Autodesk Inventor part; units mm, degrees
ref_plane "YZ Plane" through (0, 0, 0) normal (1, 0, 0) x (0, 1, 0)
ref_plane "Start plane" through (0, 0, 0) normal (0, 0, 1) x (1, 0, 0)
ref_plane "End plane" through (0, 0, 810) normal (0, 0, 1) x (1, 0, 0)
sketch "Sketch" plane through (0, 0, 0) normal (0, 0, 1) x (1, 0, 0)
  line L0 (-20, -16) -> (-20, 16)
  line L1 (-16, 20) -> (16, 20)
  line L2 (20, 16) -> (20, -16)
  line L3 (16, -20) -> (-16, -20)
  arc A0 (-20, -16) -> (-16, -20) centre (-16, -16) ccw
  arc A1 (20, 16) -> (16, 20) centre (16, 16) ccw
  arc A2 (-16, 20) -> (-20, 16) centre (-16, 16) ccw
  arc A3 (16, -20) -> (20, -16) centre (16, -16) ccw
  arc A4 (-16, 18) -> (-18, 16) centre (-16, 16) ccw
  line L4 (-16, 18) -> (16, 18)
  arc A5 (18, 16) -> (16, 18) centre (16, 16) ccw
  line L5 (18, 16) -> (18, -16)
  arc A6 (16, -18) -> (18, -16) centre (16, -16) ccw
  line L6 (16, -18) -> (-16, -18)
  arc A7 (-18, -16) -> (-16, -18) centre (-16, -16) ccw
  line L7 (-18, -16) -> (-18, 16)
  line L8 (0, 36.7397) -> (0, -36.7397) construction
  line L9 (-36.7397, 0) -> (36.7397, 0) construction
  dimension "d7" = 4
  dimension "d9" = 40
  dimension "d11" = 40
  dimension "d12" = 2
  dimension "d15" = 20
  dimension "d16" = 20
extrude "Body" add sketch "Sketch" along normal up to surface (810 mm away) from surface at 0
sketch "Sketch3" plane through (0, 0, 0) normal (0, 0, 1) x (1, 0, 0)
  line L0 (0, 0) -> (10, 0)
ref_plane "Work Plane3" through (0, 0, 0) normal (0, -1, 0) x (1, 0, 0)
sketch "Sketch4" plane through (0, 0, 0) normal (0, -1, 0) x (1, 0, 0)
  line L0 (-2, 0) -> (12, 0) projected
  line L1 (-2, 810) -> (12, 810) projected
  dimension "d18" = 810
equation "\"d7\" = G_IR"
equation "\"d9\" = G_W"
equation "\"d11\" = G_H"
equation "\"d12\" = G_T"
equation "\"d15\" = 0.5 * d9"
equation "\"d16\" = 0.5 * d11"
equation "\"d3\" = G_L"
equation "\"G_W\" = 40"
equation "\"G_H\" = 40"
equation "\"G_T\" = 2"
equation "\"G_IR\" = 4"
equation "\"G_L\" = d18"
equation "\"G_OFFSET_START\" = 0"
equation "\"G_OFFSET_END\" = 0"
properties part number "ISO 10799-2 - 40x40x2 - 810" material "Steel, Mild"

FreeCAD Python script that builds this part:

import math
import FreeCAD as App
import Part
import Sketcher
from FreeCAD import Vector
Q = App.Units.Quantity

doc = App.newDocument("Part")
body = doc.addObject("PartDesign::Body", "Body")

sketch1 = body.newObject("Sketcher::SketchObject", "Sketch")
sketch1.AttachmentSupport = (doc.getObject("XY_Plane"), [""])
sketch1.MapMode = "FlatFace"
sketch1.addGeometry(Part.LineSegment(Vector(-20, 16, 0), Vector(-20, -16, 0)), False)
sketch1.addGeometry(Part.ArcOfCircle(Part.Circle(Vector(-16, -16, 0), Vector(0, 0, 1), 4), math.radians(180), math.radians(270)), False)
sketch1.addGeometry(Part.LineSegment(Vector(-16, -20, 0), Vector(16, -20, 0)), False)
sketch1.addGeometry(Part.ArcOfCircle(Part.Circle(Vector(16, -16, 0), Vector(0, 0, 1), 4), math.radians(-90), math.radians(0)), False)
sketch1.addGeometry(Part.LineSegment(Vector(20, -16, 0), Vector(20, 16, 0)), False)
sketch1.addGeometry(Part.ArcOfCircle(Part.Circle(Vector(16, 16, 0), Vector(0, 0, 1), 4), math.radians(0), math.radians(90)), False)
sketch1.addGeometry(Part.LineSegment(Vector(16, 20, 0), Vector(-16, 20, 0)), False)
sketch1.addGeometry(Part.ArcOfCircle(Part.Circle(Vector(-16, 16, 0), Vector(0, 0, 1), 4), math.radians(90), math.radians(180)), False)
sketch1.addGeometry(Part.ArcOfCircle(Part.Circle(Vector(-16, 16, 0), Vector(0, 0, 1), 2), math.radians(90), math.radians(180)), False)
sketch1.addGeometry(Part.LineSegment(Vector(-16, 18, 0), Vector(16, 18, 0)), False)
sketch1.addGeometry(Part.ArcOfCircle(Part.Circle(Vector(16, 16, 0), Vector(0, 0, 1), 2), math.radians(0), math.radians(90)), False)
sketch1.addGeometry(Part.LineSegment(Vector(18, 16, 0), Vector(18, -16, 0)), False)
sketch1.addGeometry(Part.ArcOfCircle(Part.Circle(Vector(16, -16, 0), Vector(0, 0, 1), 2), math.radians(-90), math.radians(0)), False)
sketch1.addGeometry(Part.LineSegment(Vector(16, -18, 0), Vector(-16, -18, 0)), False)
sketch1.addGeometry(Part.ArcOfCircle(Part.Circle(Vector(-16, -16, 0), Vector(0, 0, 1), 2), math.radians(180), math.radians(270)), False)
sketch1.addGeometry(Part.LineSegment(Vector(-18, -16, 0), Vector(-18, 16, 0)), False)
sketch1.addConstraint(Sketcher.Constraint("Tangent", 0, 2, 1, 1))
sketch1.addConstraint(Sketcher.Constraint("Tangent", 1, 2, 2, 1))
sketch1.addConstraint(Sketcher.Constraint("Tangent", 2, 2, 3, 1))
sketch1.addConstraint(Sketcher.Constraint("Tangent", 3, 2, 4, 1))
sketch1.addConstraint(Sketcher.Constraint("Tangent", 4, 2, 5, 1))
sketch1.addConstraint(Sketcher.Constraint("Tangent", 5, 2, 6, 1))
sketch1.addConstraint(Sketcher.Constraint("Tangent", 6, 2, 7, 1))
sketch1.addConstraint(Sketcher.Constraint("Tangent", 7, 2, 0, 1))
sketch1.addConstraint(Sketcher.Constraint("Tangent", 8, 1, 9, 1))
sketch1.addConstraint(Sketcher.Constraint("Tangent", 9, 2, 10, 2))
sketch1.addConstraint(Sketcher.Constraint("Tangent", 10, 1, 11, 1))
sketch1.addConstraint(Sketcher.Constraint("Tangent", 11, 2, 12, 2))
sketch1.addConstraint(Sketcher.Constraint("Tangent", 12, 1, 13, 1))
sketch1.addConstraint(Sketcher.Constraint("Tangent", 13, 2, 14, 2))
sketch1.addConstraint(Sketcher.Constraint("Tangent", 14, 1, 15, 1))
sketch1.addConstraint(Sketcher.Constraint("Tangent", 15, 2, 8, 2))
sketch1.addConstraint(Sketcher.Constraint("Vertical", 0))
sketch1.addConstraint(Sketcher.Constraint("Horizontal", 2))
sketch1.addConstraint(Sketcher.Constraint("Vertical", 4))
sketch1.addConstraint(Sketcher.Constraint("Horizontal", 6))
sketch1.addConstraint(Sketcher.Constraint("Horizontal", 9))
sketch1.addConstraint(Sketcher.Constraint("Vertical", 11))
sketch1.addConstraint(Sketcher.Constraint("Horizontal", 13))
sketch1.addConstraint(Sketcher.Constraint("Vertical", 15))
sketch1.addConstraint(Sketcher.Constraint("Coincident", 8, 3, 7, 3))
sketch1.addConstraint(Sketcher.Constraint("Coincident", 10, 3, 5, 3))
sketch1.addConstraint(Sketcher.Constraint("Coincident", 12, 3, 3, 3))
sketch1.addConstraint(Sketcher.Constraint("Equal", 1, 3))
sketch1.addConstraint(Sketcher.Constraint("Equal", 3, 5))
sketch1.addConstraint(Sketcher.Constraint("Equal", 5, 7))
sketch1.addConstraint(Sketcher.Constraint("Equal", 12, 14))
sketch1.addConstraint(Sketcher.Constraint("Symmetric", 1, 3, 5, 3, -1, 1))
sketch1.addConstraint(Sketcher.Constraint("Equal", 13, 0))
sketch1.addConstraint(Sketcher.Constraint("Radius", 1, Q("4 mm")))
sketch1.addConstraint(Sketcher.Constraint("Radius", 8, Q("2 mm")))
sketch1.addConstraint(Sketcher.Constraint("DistanceX", 0, 2, -1, 1, Q("20 mm")))
pad1 = body.newObject("PartDesign::Pad", "Pad")
pad1.Profile = sketch1
pad1.Length = 810

doc.recompute()
